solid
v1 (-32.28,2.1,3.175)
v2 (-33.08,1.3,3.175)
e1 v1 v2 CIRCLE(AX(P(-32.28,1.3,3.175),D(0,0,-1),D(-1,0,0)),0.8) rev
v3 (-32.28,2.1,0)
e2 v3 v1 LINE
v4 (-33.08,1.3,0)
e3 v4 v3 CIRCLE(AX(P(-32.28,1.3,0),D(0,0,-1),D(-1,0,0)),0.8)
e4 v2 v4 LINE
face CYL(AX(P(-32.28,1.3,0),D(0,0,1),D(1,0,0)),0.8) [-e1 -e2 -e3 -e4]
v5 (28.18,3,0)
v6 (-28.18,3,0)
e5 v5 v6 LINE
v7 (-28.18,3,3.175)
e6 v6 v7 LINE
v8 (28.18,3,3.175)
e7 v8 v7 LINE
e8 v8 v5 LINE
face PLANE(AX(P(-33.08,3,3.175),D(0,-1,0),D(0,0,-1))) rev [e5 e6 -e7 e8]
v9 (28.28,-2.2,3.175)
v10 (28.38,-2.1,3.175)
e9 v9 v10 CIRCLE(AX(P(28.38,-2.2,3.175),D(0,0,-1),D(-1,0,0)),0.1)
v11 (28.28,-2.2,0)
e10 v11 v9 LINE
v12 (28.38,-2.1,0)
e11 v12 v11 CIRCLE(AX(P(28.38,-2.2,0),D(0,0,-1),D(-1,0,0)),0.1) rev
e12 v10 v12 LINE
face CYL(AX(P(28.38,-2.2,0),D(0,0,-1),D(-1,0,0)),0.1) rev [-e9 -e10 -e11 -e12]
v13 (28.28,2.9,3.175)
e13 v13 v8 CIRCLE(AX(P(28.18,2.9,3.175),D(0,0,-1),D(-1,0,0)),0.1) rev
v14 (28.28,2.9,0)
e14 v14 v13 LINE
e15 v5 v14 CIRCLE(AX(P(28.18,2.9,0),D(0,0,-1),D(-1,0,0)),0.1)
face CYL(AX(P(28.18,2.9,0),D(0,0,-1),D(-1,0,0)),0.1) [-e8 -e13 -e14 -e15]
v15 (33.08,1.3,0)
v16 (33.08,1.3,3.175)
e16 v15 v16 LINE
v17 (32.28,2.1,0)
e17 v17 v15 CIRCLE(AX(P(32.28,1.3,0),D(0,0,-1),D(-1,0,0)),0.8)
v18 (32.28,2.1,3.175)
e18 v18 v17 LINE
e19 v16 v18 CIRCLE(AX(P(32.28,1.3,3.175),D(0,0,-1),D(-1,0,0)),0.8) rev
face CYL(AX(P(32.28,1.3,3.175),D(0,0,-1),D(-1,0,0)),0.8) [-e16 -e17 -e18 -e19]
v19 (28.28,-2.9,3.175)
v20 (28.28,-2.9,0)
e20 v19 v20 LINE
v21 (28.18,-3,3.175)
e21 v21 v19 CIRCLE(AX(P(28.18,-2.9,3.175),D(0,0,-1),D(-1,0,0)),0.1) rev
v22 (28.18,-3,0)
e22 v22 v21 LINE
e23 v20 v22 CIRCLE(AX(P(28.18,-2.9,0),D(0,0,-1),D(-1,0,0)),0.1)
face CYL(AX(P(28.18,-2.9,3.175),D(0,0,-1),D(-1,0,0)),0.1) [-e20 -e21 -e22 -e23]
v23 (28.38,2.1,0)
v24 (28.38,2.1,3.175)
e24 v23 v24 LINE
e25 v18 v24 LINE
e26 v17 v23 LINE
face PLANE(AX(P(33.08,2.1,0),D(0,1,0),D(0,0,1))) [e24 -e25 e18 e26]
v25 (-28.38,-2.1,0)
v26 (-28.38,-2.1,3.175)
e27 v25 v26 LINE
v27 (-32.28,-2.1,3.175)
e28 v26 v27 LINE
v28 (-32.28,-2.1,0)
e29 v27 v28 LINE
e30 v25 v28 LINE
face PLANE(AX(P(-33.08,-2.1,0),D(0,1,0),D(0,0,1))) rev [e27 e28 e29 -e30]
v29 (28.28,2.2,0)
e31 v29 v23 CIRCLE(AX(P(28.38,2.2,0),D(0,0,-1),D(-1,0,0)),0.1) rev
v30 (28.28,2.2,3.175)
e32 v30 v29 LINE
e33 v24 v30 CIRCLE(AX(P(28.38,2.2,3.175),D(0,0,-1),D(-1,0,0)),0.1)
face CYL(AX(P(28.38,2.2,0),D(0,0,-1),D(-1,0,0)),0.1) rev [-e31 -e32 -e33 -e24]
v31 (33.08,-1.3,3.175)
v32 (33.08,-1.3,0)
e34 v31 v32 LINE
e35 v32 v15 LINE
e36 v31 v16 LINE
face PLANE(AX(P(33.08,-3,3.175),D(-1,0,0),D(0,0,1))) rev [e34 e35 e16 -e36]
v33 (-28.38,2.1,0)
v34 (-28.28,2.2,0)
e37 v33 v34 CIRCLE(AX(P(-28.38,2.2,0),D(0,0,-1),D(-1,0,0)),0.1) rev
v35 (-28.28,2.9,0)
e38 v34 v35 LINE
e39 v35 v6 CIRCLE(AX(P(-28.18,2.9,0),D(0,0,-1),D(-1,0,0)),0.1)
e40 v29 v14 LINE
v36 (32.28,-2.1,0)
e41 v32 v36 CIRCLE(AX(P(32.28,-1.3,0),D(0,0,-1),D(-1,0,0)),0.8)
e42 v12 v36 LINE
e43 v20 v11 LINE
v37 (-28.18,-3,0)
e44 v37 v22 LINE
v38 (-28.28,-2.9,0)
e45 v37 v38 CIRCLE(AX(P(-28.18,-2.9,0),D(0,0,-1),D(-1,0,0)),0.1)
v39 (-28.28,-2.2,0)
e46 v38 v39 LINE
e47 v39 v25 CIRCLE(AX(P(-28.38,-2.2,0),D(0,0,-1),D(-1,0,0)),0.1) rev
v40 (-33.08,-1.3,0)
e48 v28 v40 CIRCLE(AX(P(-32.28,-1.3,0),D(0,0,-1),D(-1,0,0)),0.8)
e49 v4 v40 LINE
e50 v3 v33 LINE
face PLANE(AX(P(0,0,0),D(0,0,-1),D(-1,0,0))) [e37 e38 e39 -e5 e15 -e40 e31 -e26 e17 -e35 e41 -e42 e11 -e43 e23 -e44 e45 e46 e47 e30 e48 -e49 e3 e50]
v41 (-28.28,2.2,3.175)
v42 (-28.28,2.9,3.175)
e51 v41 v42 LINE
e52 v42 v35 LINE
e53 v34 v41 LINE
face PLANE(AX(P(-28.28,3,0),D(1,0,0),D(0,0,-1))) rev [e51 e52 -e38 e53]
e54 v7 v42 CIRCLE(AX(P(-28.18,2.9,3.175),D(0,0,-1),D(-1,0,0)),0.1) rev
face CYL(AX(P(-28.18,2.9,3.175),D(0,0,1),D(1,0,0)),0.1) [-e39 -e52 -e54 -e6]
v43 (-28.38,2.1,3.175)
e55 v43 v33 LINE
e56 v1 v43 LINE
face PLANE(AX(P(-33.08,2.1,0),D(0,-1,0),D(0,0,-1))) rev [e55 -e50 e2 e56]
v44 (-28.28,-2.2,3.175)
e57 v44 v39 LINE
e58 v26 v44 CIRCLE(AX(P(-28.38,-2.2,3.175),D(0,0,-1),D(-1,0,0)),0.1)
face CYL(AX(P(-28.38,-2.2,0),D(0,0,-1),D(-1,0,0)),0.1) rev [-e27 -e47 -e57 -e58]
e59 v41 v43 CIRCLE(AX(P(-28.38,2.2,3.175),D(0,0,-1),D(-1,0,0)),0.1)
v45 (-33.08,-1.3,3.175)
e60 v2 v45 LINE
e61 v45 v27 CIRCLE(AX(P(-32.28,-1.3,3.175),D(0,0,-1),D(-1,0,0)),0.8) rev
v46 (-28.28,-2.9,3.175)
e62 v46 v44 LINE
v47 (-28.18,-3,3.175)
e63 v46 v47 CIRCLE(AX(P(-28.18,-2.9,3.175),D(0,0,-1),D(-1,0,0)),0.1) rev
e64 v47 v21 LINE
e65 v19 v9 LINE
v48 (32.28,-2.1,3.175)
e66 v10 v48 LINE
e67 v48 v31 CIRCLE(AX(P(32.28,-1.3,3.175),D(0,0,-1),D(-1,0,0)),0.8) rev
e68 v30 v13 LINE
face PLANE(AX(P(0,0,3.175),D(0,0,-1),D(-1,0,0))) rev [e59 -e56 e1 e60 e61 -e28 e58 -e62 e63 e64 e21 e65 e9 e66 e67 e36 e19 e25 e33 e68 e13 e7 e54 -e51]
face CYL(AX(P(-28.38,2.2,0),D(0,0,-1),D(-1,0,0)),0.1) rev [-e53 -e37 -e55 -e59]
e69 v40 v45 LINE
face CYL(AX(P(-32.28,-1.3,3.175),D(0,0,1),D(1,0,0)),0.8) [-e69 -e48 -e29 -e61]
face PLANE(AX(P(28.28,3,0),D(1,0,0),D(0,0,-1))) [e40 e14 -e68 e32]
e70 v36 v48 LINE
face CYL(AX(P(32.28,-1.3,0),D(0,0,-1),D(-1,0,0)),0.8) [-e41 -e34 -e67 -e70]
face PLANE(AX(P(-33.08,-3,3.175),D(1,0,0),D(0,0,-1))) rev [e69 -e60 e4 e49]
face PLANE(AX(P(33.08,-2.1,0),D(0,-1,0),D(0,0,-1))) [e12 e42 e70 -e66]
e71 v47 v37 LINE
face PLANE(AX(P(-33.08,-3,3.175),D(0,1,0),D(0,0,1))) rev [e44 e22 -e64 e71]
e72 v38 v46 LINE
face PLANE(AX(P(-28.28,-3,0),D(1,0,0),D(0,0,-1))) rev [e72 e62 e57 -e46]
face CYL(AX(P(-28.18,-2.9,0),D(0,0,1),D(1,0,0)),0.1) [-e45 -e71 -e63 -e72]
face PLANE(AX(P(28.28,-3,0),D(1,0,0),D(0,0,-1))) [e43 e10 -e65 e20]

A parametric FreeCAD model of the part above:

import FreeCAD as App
import Part
import Sketcher


def edges_at(feature, points):
    """Names of the edges that pass closest to the given points."""
    edges = feature.Shape.Edges
    near = lambda p: min(range(len(edges)), key=lambda i: edges[i].distToShape(Part.Vertex(*p))[0])
    return sorted({f"Edge{near(p) + 1}" for p in points})


def add_polygon(sketch, points):
    """Adds a closed chain of lines whose ends are joined by coincident constraints."""
    first, n = sketch.GeometryCount, len(points)
    for a, b in zip(points, points[1:] + points[:1]):
        sketch.addGeometry(Part.LineSegment(App.Vector(*a, 0), App.Vector(*b, 0)), False)
    for i in range(n):
        sketch.addConstraint(Sketcher.Constraint("Coincident", first + i, 2, first + (i + 1) % n, 1))

doc = App.newDocument("Part")
body = doc.addObject("PartDesign::Body", "Body")

# Sketch on XY plane
sketch1 = body.newObject("Sketcher::SketchObject", "Sketch")
sketch1.AttachmentSupport = (doc.getObject("XY_Plane"), [""])
sketch1.MapMode = "FlatFace"
add_polygon(sketch1, [(-33, 3), (-33, -3), (33, -3), (33, 3)])  # lines 0-3
sketch1.addConstraint([
    Sketcher.Constraint("Vertical", 0),
    Sketcher.Constraint("Horizontal", 1),
    Sketcher.Constraint("Vertical", 2),
    Sketcher.Constraint("Horizontal", 3),
    Sketcher.Constraint("Symmetric", 0, 2, 2, 2, -1, 1),
    Sketcher.Constraint("DistanceY", 0, 2, 0, 1, 6.0),
    Sketcher.Constraint("DistanceX", 1, 1, 1, 2, 66.16),
])
pad1 = body.newObject("PartDesign::Pad", "Pad")
pad1.Profile = sketch1
pad1.Length = 3.175

# Sketch on XY plane
sketch2 = body.newObject("Sketcher::SketchObject", "Sketch001")
sketch2.AttachmentSupport = (doc.getObject("XY_Plane"), [""])
sketch2.MapMode = "FlatFace"
sketch2.AttachmentOffset = App.Placement(App.Vector(0, 0, 3.175), App.Rotation())
add_polygon(sketch2, [(-33.1, 3), (-33.1, 2.1), (-28.3, 2.1), (-28.3, 3)])  # lines 0-3
add_polygon(sketch2, [(-33.1, -2.1), (-33.1, -3), (-28.3, -3), (-28.3, -2.1)])  # lines 4-7
sketch2.addConstraint([
    Sketcher.Constraint("Vertical", 0),
    Sketcher.Constraint("Horizontal", 1),
    Sketcher.Constraint("Vertical", 2),
    Sketcher.Constraint("Horizontal", 3),
    Sketcher.Constraint("Vertical", 4),
    Sketcher.Constraint("Horizontal", 5),
    Sketcher.Constraint("Vertical", 6),
    Sketcher.Constraint("Horizontal", 7),
    Sketcher.Constraint("Symmetric", 3, 2, 4, 2, -1),
    Sketcher.Constraint("Symmetric", 1, 2, 6, 2, -1),
    Sketcher.Constraint("DistanceX", 1, 1, 1, 2, 4.8),
    Sketcher.Constraint("DistanceY", 0, 2, 0, 1, 0.9),
    Sketcher.Constraint("DistanceY", -1, 1, 2, 2, 3.0),
    Sketcher.Constraint("DistanceX", 0, 2, -1, 1, 33.08),
])
pocket1 = body.newObject("PartDesign::Pocket", "Pocket")
pocket1.Profile = sketch2
pocket1.Type = "ThroughAll"
doc.recompute()

mirrored = body.newObject("PartDesign::Mirrored", "Mirrored")
mirrored.Originals = [pocket1]
mirrored.MirrorPlane = (doc.getObject("YZ_Plane"), [""])
body.Tip = mirrored
doc.recompute()

fillet = body.newObject("PartDesign::Fillet", "Fillet")
fillet.Base = (mirrored, edges_at(mirrored, [
    (-33.08, 2.1, 1.587),
    (-33.08, -2.1, 1.587),
    (33.08, 2.1, 1.587),
    (33.08, -2.1, 1.587),
]))
fillet.Radius = 0.8
doc.recompute()

fillet2 = body.newObject("PartDesign::Fillet", "Fillet001")
fillet2.Base = (fillet, edges_at(fillet, [
    (-28.28, 3, 1.587),
    (-28.28, 2.1, 1.587),
    (-28.28, -2.1, 1.587),
    (-28.28, -3, 1.587),
    (28.28, 2.1, 1.587),
    (28.28, 3, 1.587),
    (28.28, -3, 1.587),
    (28.28, -2.1, 1.587),
]))
fillet2.Radius = 0.1

doc.recompute()
